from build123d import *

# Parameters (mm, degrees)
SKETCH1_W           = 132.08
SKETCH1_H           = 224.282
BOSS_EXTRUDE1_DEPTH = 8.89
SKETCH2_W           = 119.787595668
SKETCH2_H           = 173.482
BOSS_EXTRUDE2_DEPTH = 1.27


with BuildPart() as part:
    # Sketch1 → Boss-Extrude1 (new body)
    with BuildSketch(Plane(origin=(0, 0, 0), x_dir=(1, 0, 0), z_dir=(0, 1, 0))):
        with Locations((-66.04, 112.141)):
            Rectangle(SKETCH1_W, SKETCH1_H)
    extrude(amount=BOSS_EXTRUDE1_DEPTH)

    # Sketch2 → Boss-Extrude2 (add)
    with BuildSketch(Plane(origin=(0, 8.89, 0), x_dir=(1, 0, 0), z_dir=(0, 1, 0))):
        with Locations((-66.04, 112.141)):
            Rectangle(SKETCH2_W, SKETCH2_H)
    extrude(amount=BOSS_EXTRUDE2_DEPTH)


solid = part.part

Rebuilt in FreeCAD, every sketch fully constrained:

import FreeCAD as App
import Part
import Sketcher

V = App.Vector
Q = App.Units.Quantity


def add_polygon(sketch, points):
    """Adds a closed chain of lines whose ends are joined by coincident constraints."""
    first, n = sketch.GeometryCount, len(points)
    for a, b in zip(points, points[1:] + points[:1]):
        sketch.addGeometry(Part.LineSegment(App.Vector(*a, 0), App.Vector(*b, 0)), False)
    for i in range(n):
        sketch.addConstraint(Sketcher.Constraint("Coincident", first + i, 2, first + (i + 1) % n, 1))

doc = App.newDocument("Part")
body = doc.addObject("PartDesign::Body", "Body")

# Sketch on XZ plane
sketch1 = body.newObject("Sketcher::SketchObject", "Sketch")
sketch1.AttachmentSupport = (doc.getObject("XZ_Plane"), [""])
sketch1.MapMode = "FlatFace"
add_polygon(sketch1, [(-132.08, -224.282), (-132.08, 0), (0, 0), (0, -224.282)])  # lines 0-3
sketch1.addConstraint(Sketcher.Constraint("Vertical", 0))
sketch1.addConstraint(Sketcher.Constraint("Horizontal", 1))
sketch1.addConstraint(Sketcher.Constraint("Vertical", 2))
sketch1.addConstraint(Sketcher.Constraint("Horizontal", 3))
sketch1.addConstraint(Sketcher.Constraint("Coincident", 1, 2, -1, 1))
sketch1.addConstraint(Sketcher.Constraint("DistanceX", 1, 1, 1, 2, Q("5.2 in")))
sketch1.addConstraint(Sketcher.Constraint("DistanceY", 0, 1, 0, 2, Q("8.83 in")))
pad1 = body.newObject("PartDesign::Pad", "Pad")
pad1.Profile = sketch1
pad1.Length = Q("0.35 in")
pad1.Reversed = True

# Sketch on XZ plane
sketch2 = body.newObject("Sketcher::SketchObject", "Sketch001")
sketch2.AttachmentSupport = (doc.getObject("XZ_Plane"), [""])
sketch2.MapMode = "FlatFace"
sketch2.AttachmentOffset = App.Placement(V(0, 0, -0.35 * 25.4), App.Rotation())
add_polygon(sketch2, [(-125.933798, -198.882), (-125.933798, -25.4), (-6.146202, -25.4), (-6.146202, -198.882)])  # lines 0-3
sketch2.addConstraint(Sketcher.Constraint("Vertical", 0))
sketch2.addConstraint(Sketcher.Constraint("Horizontal", 1))
sketch2.addConstraint(Sketcher.Constraint("Vertical", 2))
sketch2.addConstraint(Sketcher.Constraint("Horizontal", 3))
sketch2.addConstraint(Sketcher.Constraint("DistanceY", 0, 2, -1, 1, Q("1 in")))
sketch2.addConstraint(Sketcher.Constraint("DistanceY", 0, 1, 0, 2, Q("6.83 in")))
sketch2.addConstraint(Sketcher.Constraint("DistanceX", 1, 1, 1, 2, 119.787596))
sketch2.addConstraint(Sketcher.Constraint("DistanceX", 0, 2, -1, 1, 125.933798))
pad2 = body.newObject("PartDesign::Pad", "Pad001")
pad2.Profile = sketch2
pad2.Length = Q("0.05 in")
pad2.Reversed = True

doc.recompute()
